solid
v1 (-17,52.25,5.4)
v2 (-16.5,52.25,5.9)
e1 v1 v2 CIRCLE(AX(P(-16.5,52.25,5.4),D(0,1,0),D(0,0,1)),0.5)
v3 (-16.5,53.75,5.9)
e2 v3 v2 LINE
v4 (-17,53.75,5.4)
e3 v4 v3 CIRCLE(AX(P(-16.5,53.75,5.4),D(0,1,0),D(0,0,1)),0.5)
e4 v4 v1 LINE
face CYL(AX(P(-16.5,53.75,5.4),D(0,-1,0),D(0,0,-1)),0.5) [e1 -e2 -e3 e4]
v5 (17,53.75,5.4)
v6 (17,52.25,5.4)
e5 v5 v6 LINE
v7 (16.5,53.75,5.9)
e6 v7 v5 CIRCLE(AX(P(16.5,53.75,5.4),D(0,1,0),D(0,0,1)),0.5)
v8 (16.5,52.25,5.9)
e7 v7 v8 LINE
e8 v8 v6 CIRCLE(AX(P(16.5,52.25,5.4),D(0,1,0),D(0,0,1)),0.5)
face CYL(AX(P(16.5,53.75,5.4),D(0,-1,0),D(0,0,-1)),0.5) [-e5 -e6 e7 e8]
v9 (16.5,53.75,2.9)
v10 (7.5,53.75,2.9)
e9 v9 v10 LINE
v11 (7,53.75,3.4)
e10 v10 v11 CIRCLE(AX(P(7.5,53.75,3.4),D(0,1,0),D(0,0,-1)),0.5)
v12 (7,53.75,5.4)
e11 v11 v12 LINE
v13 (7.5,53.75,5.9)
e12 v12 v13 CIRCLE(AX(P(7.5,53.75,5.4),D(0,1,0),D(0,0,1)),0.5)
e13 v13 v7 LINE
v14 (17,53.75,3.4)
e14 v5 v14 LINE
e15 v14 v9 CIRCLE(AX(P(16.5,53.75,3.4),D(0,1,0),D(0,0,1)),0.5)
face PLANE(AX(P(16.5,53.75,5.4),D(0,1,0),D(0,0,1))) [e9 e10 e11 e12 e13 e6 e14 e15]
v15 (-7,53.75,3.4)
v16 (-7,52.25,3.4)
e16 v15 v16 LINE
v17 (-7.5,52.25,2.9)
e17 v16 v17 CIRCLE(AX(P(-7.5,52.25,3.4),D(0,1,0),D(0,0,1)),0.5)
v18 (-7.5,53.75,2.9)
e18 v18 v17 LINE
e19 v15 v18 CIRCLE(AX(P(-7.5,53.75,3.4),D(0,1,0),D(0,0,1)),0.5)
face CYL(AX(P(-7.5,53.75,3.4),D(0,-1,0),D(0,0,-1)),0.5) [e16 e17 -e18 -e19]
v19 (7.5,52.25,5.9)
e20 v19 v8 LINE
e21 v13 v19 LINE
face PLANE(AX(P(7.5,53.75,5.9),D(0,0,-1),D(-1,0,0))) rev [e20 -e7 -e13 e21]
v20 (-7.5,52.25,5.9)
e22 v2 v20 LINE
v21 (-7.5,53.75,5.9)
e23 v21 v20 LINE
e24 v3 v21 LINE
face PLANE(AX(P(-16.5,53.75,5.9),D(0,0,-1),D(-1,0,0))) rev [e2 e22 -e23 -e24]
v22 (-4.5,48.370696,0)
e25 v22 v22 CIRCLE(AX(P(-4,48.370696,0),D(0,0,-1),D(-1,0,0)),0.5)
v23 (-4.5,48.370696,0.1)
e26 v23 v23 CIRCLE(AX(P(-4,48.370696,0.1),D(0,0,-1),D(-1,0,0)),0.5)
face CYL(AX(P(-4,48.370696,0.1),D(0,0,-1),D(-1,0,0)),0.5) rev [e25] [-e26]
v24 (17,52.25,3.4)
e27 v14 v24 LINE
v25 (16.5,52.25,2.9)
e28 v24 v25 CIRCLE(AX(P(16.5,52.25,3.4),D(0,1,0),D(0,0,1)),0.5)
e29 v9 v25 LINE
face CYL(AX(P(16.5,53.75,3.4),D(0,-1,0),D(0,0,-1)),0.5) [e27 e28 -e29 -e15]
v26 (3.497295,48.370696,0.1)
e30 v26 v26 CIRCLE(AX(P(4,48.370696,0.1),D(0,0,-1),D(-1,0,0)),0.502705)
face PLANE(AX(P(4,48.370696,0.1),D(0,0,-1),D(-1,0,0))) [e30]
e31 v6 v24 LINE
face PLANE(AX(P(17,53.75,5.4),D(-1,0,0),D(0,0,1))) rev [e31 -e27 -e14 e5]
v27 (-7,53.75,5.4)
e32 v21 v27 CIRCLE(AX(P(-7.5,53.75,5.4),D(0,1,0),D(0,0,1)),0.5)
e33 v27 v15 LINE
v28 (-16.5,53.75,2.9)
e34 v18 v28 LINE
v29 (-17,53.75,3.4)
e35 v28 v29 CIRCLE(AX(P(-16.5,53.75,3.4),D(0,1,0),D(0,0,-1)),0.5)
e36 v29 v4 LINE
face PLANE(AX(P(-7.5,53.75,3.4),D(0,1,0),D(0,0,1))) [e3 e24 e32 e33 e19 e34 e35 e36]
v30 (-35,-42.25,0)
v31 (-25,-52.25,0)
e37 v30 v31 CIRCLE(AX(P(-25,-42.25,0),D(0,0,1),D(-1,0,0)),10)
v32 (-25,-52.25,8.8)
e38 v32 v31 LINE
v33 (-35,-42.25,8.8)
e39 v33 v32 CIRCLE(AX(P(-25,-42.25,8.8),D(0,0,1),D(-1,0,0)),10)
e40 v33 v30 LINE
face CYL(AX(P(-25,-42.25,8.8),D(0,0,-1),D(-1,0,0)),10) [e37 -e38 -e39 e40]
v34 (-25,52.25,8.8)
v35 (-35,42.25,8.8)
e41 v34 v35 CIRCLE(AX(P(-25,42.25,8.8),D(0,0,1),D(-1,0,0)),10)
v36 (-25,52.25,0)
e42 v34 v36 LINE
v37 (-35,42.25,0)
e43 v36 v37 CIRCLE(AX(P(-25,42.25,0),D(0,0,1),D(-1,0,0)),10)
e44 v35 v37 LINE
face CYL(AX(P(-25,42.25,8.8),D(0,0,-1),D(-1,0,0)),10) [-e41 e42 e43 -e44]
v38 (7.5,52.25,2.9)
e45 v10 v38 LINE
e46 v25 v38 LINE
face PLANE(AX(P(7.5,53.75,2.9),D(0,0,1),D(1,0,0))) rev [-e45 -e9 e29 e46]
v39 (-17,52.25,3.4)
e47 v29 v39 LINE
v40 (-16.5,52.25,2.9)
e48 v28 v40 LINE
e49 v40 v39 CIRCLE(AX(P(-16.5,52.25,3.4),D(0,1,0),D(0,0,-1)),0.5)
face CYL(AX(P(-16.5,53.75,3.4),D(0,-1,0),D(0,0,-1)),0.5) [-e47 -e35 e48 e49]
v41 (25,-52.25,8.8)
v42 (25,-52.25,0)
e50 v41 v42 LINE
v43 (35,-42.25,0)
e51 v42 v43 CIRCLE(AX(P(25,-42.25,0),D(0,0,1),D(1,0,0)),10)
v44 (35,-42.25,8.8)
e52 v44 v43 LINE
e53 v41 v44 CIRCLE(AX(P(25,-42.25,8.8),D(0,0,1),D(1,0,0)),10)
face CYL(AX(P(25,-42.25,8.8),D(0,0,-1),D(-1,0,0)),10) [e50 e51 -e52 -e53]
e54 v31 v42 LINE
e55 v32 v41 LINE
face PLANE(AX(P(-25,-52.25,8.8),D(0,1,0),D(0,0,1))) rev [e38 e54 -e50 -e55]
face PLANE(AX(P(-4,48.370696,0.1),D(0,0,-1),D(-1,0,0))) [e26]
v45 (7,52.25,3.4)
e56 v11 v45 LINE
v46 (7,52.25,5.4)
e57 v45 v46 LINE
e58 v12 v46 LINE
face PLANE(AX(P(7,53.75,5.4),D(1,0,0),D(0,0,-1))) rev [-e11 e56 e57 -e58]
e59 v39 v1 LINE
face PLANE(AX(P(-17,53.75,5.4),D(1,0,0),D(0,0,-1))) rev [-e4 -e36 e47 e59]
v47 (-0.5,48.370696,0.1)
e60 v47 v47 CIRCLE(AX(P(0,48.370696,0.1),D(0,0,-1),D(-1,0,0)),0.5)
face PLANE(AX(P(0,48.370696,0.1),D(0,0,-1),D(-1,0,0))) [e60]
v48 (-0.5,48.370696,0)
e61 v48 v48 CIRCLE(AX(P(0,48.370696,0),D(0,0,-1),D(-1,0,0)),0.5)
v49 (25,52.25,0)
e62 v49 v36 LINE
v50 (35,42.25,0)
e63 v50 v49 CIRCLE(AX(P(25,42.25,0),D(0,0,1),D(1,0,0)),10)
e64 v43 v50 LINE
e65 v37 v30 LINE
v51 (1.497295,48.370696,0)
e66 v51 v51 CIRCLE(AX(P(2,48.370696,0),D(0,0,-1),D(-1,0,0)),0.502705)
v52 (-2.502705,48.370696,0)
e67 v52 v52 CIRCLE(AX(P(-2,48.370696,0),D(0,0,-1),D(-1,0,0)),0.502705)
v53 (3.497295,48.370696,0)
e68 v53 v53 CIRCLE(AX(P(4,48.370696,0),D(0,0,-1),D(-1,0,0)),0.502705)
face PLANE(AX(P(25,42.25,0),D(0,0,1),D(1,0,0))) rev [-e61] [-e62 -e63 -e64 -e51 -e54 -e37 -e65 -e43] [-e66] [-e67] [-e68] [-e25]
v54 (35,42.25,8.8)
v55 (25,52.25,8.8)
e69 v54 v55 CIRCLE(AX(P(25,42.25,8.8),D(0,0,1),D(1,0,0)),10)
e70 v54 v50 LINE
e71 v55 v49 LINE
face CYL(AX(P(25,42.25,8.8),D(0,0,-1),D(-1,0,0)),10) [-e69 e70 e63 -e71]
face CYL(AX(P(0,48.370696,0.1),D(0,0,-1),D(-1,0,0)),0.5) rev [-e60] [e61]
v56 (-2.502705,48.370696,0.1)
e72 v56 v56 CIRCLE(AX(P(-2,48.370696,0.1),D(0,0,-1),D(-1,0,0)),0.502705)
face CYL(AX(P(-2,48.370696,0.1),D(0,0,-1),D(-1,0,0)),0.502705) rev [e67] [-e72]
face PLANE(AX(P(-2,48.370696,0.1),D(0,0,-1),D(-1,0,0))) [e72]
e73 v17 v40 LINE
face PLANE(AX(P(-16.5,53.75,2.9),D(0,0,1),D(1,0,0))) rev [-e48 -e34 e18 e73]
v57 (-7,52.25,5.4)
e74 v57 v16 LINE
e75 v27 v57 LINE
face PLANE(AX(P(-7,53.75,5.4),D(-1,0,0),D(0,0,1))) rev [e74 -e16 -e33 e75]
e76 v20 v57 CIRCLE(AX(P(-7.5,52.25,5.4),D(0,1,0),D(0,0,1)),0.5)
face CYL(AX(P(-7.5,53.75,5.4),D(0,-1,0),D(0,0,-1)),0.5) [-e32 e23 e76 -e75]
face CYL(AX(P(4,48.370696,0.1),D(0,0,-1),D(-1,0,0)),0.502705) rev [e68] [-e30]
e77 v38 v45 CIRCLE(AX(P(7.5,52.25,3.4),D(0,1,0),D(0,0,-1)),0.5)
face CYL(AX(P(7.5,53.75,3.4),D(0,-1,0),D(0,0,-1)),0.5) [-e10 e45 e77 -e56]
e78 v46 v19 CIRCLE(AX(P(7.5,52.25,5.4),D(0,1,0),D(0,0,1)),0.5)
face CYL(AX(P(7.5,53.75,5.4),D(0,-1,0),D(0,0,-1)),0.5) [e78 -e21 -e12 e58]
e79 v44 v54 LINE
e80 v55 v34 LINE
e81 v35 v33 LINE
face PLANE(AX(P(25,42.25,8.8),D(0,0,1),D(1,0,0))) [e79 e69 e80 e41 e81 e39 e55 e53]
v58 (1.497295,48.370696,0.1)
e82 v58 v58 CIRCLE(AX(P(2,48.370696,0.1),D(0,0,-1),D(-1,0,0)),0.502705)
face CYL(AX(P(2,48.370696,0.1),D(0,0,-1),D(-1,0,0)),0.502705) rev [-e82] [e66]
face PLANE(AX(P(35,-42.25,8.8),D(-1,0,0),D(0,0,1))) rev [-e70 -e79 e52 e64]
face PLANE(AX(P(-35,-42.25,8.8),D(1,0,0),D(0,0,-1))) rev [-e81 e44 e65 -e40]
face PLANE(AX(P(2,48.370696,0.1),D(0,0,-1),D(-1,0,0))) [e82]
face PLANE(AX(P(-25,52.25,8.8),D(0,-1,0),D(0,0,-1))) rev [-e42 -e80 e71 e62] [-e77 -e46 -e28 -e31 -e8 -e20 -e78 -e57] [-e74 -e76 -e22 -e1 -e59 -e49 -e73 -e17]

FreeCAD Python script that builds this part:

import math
import FreeCAD as App
import Part
import Sketcher
from FreeCAD import Vector
Q = App.Units.Quantity

doc = App.newDocument("Part")
body = doc.addObject("PartDesign::Body", "Body")

# Sketch on XY plane
sketch1 = body.newObject("Sketcher::SketchObject", "Sketch")
sketch1.AttachmentSupport = (doc.getObject("XY_Plane"), [""])
sketch1.MapMode = "FlatFace"
sketch1.addGeometry([
    Part.LineSegment(Vector(-25, -52, 0), Vector(25, -52, 0)),  # 0
    Part.ArcOfCircle(Part.Circle(Vector(25, -42, 0), Vector(0, 0, 1), 10), math.radians(-90), math.radians(0)),  # 1
    Part.LineSegment(Vector(35, -42, 0), Vector(35, 42, 0)),  # 2
    Part.ArcOfCircle(Part.Circle(Vector(25, 42, 0), Vector(0, 0, 1), 10), math.radians(0), math.radians(90)),  # 3
    Part.LineSegment(Vector(25, 52, 0), Vector(-25, 52, 0)),  # 4
    Part.ArcOfCircle(Part.Circle(Vector(-25, 42, 0), Vector(0, 0, 1), 10), math.radians(90), math.radians(180)),  # 5
    Part.LineSegment(Vector(-35, 42, 0), Vector(-35, -42, 0)),  # 6
    Part.ArcOfCircle(Part.Circle(Vector(-25, -42, 0), Vector(0, 0, 1), 10), math.radians(180), math.radians(270)),  # 7
], False)
sketch1.addConstraint([
    Sketcher.Constraint("Tangent", 0, 2, 1, 1),
    Sketcher.Constraint("Tangent", 1, 2, 2, 1),
    Sketcher.Constraint("Tangent", 2, 2, 3, 1),
    Sketcher.Constraint("Tangent", 3, 2, 4, 1),
    Sketcher.Constraint("Tangent", 4, 2, 5, 1),
    Sketcher.Constraint("Tangent", 5, 2, 6, 1),
    Sketcher.Constraint("Tangent", 6, 2, 7, 1),
    Sketcher.Constraint("Tangent", 7, 2, 0, 1),
    Sketcher.Constraint("Horizontal", 0),
    Sketcher.Constraint("Vertical", 2),
    Sketcher.Constraint("Horizontal", 4),
    Sketcher.Constraint("Vertical", 6),
    Sketcher.Constraint("Equal", 1, 3),
    Sketcher.Constraint("Equal", 3, 5),
    Sketcher.Constraint("Equal", 5, 7),
    Sketcher.Constraint("Symmetric", 1, 3, 5, 3, -1, 1),
    Sketcher.Constraint("Radius", 1, Q("10 mm")),
    Sketcher.Constraint("DistanceX", 0, 1, 0, 2, Q("50 mm")),
    Sketcher.Constraint("DistanceY", 2, 1, 2, 2, Q("84.5 mm")),
])
pad1 = body.newObject("PartDesign::Pad", "Pad")
pad1.Profile = sketch1
pad1.Length = 8.8

# Sketch on XZ plane
sketch2 = body.newObject("Sketcher::SketchObject", "Sketch001")
sketch2.AttachmentSupport = (doc.getObject("XZ_Plane"), [""])
sketch2.MapMode = "FlatFace"
sketch2.AttachmentOffset = App.Placement(Vector(0, 0, -52.25), App.Rotation())
sketch2.addGeometry([
    Part.LineSegment(Vector(-16.5, 5.9, 0), Vector(-7.5, 5.9, 0)),  # 0
    Part.ArcOfCircle(Part.Circle(Vector(-7.5, 5.4, 0), Vector(0, 0, 1), 0.5), math.radians(0), math.radians(90)),  # 1
    Part.LineSegment(Vector(-7, 5.4, 0), Vector(-7, 3.4, 0)),  # 2
    Part.ArcOfCircle(Part.Circle(Vector(-7.5, 3.4, 0), Vector(0, 0, 1), 0.5), math.radians(-90), math.radians(0)),  # 3
    Part.LineSegment(Vector(-7.5, 2.9, 0), Vector(-16.5, 2.9, 0)),  # 4
    Part.ArcOfCircle(Part.Circle(Vector(-16.5, 3.4, 0), Vector(0, 0, 1), 0.5), math.radians(180), math.radians(270)),  # 5
    Part.LineSegment(Vector(-17, 3.4, 0), Vector(-17, 5.4, 0)),  # 6
    Part.ArcOfCircle(Part.Circle(Vector(-16.5, 5.4, 0), Vector(0, 0, 1), 0.5), math.radians(90), math.radians(180)),  # 7
    Part.LineSegment(Vector(7.5, 5.9, 0), Vector(16.5, 5.9, 0)),  # 8
    Part.ArcOfCircle(Part.Circle(Vector(16.5, 5.4, 0), Vector(0, 0, 1), 0.5), math.radians(0), math.radians(90)),  # 9
    Part.LineSegment(Vector(17, 5.4, 0), Vector(17, 3.4, 0)),  # 10
    Part.ArcOfCircle(Part.Circle(Vector(16.5, 3.4, 0), Vector(0, 0, 1), 0.5), math.radians(-90), math.radians(0)),  # 11
    Part.LineSegment(Vector(16.5, 2.9, 0), Vector(7.5, 2.9, 0)),  # 12
    Part.ArcOfCircle(Part.Circle(Vector(7.5, 3.4, 0), Vector(0, 0, 1), 0.5), math.radians(180), math.radians(270)),  # 13
    Part.LineSegment(Vector(7, 3.4, 0), Vector(7, 5.4, 0)),  # 14
    Part.ArcOfCircle(Part.Circle(Vector(7.5, 5.4, 0), Vector(0, 0, 1), 0.5), math.radians(90), math.radians(180)),  # 15
], False)
sketch2.addConstraint([
    Sketcher.Constraint("Tangent", 0, 2, 1, 2),
    Sketcher.Constraint("Tangent", 1, 1, 2, 1),
    Sketcher.Constraint("Tangent", 2, 2, 3, 2),
    Sketcher.Constraint("Tangent", 3, 1, 4, 1),
    Sketcher.Constraint("Tangent", 4, 2, 5, 2),
    Sketcher.Constraint("Tangent", 5, 1, 6, 1),
    Sketcher.Constraint("Tangent", 6, 2, 7, 2),
    Sketcher.Constraint("Tangent", 7, 1, 0, 1),
    Sketcher.Constraint("Tangent", 8, 2, 9, 2),
    Sketcher.Constraint("Tangent", 9, 1, 10, 1),
    Sketcher.Constraint("Tangent", 10, 2, 11, 2),
    Sketcher.Constraint("Tangent", 11, 1, 12, 1),
    Sketcher.Constraint("Tangent", 12, 2, 13, 2),
    Sketcher.Constraint("Tangent", 13, 1, 14, 1),
    Sketcher.Constraint("Tangent", 14, 2, 15, 2),
    Sketcher.Constraint("Tangent", 15, 1, 8, 1),
    Sketcher.Constraint("Horizontal", 0),
    Sketcher.Constraint("Vertical", 2),
    Sketcher.Constraint("Horizontal", 4),
    Sketcher.Constraint("Vertical", 6),
    Sketcher.Constraint("Horizontal", 8),
    Sketcher.Constraint("Vertical", 10),
    Sketcher.Constraint("Horizontal", 12),
    Sketcher.Constraint("Vertical", 14),
    Sketcher.Constraint("Equal", 1, 3),
    Sketcher.Constraint("Equal", 3, 5),
    Sketcher.Constraint("Equal", 5, 7),
    Sketcher.Constraint("Equal", 7, 9),
    Sketcher.Constraint("Equal", 9, 11),
    Sketcher.Constraint("Equal", 11, 13),
    Sketcher.Constraint("Equal", 13, 15),
    Sketcher.Constraint("Symmetric", 7, 3, 9, 3, -2),
    Sketcher.Constraint("Symmetric", 3, 3, 13, 3, -2),
    Sketcher.Constraint("Radius", 1, Q("0.5 mm")),
    Sketcher.Constraint("DistanceX", 0, 1, 0, 2, Q("9 mm")),
    Sketcher.Constraint("DistanceY", 2, 2, 2, 1, Q("2 mm")),
    Sketcher.Constraint("DistanceX", 1, 1, -1, 1, Q("7 mm")),
    Sketcher.Constraint("DistanceY", -1, 1, 1, 3, Q("5.4 mm")),
])
pad2 = body.newObject("PartDesign::Pad", "Pad001")
pad2.Profile = sketch2
pad2.Length = 1.5
pad2.Reversed = True

# Sketch on XY plane
sketch3 = body.newObject("Sketcher::SketchObject", "Sketch002")
sketch3.AttachmentSupport = (doc.getObject("XY_Plane"), [""])
sketch3.MapMode = "FlatFace"
sketch3.addGeometry([
    Part.Circle(Vector(0, 48.4, 0), Vector(0, 0, 1), 0.5),  # 0
    Part.Circle(Vector(2, 48.4, 0), Vector(0, 0, 1), 0.5),  # 1
    Part.Circle(Vector(-4, 48.4, 0), Vector(0, 0, 1), 0.5),  # 2
    Part.Circle(Vector(-2, 48.4, 0), Vector(0, 0, 1), 0.5),  # 3
    Part.Circle(Vector(4, 48.4, 0), Vector(0, 0, 1), 0.5),  # 4
], False)
sketch3.addConstraint([
    Sketcher.Constraint("Equal", 0, 2),
    Sketcher.Constraint("Equal", 1, 3),
    Sketcher.Constraint("Equal", 3, 4),
    Sketcher.Constraint("Symmetric", 1, 3, 3, 3, -2),
    Sketcher.Constraint("Symmetric", 2, 3, 4, 3, -2),
    Sketcher.Constraint("PointOnObject", 0, 3, -2),
    Sketcher.Constraint("Horizontal", 0, 3, 1, 3),
    Sketcher.Constraint("Horizontal", 1, 3, 2, 3),
    Sketcher.Constraint("Diameter", 0, Q("1 mm")),
    Sketcher.Constraint("DistanceX", -1, 1, 1, 3, Q("2 mm")),
    Sketcher.Constraint("DistanceX", 2, 3, -1, 1, Q("4 mm")),
    Sketcher.Constraint("Diameter", 1, Q("1.00541 mm")),
    Sketcher.Constraint("DistanceY", -1, 1, 0, 3, Q("48.370696 mm")),
])
pocket1 = body.newObject("PartDesign::Pocket", "Pocket")
pocket1.Profile = sketch3
pocket1.Length = 0.1
pocket1.Reversed = True

doc.recompute()
